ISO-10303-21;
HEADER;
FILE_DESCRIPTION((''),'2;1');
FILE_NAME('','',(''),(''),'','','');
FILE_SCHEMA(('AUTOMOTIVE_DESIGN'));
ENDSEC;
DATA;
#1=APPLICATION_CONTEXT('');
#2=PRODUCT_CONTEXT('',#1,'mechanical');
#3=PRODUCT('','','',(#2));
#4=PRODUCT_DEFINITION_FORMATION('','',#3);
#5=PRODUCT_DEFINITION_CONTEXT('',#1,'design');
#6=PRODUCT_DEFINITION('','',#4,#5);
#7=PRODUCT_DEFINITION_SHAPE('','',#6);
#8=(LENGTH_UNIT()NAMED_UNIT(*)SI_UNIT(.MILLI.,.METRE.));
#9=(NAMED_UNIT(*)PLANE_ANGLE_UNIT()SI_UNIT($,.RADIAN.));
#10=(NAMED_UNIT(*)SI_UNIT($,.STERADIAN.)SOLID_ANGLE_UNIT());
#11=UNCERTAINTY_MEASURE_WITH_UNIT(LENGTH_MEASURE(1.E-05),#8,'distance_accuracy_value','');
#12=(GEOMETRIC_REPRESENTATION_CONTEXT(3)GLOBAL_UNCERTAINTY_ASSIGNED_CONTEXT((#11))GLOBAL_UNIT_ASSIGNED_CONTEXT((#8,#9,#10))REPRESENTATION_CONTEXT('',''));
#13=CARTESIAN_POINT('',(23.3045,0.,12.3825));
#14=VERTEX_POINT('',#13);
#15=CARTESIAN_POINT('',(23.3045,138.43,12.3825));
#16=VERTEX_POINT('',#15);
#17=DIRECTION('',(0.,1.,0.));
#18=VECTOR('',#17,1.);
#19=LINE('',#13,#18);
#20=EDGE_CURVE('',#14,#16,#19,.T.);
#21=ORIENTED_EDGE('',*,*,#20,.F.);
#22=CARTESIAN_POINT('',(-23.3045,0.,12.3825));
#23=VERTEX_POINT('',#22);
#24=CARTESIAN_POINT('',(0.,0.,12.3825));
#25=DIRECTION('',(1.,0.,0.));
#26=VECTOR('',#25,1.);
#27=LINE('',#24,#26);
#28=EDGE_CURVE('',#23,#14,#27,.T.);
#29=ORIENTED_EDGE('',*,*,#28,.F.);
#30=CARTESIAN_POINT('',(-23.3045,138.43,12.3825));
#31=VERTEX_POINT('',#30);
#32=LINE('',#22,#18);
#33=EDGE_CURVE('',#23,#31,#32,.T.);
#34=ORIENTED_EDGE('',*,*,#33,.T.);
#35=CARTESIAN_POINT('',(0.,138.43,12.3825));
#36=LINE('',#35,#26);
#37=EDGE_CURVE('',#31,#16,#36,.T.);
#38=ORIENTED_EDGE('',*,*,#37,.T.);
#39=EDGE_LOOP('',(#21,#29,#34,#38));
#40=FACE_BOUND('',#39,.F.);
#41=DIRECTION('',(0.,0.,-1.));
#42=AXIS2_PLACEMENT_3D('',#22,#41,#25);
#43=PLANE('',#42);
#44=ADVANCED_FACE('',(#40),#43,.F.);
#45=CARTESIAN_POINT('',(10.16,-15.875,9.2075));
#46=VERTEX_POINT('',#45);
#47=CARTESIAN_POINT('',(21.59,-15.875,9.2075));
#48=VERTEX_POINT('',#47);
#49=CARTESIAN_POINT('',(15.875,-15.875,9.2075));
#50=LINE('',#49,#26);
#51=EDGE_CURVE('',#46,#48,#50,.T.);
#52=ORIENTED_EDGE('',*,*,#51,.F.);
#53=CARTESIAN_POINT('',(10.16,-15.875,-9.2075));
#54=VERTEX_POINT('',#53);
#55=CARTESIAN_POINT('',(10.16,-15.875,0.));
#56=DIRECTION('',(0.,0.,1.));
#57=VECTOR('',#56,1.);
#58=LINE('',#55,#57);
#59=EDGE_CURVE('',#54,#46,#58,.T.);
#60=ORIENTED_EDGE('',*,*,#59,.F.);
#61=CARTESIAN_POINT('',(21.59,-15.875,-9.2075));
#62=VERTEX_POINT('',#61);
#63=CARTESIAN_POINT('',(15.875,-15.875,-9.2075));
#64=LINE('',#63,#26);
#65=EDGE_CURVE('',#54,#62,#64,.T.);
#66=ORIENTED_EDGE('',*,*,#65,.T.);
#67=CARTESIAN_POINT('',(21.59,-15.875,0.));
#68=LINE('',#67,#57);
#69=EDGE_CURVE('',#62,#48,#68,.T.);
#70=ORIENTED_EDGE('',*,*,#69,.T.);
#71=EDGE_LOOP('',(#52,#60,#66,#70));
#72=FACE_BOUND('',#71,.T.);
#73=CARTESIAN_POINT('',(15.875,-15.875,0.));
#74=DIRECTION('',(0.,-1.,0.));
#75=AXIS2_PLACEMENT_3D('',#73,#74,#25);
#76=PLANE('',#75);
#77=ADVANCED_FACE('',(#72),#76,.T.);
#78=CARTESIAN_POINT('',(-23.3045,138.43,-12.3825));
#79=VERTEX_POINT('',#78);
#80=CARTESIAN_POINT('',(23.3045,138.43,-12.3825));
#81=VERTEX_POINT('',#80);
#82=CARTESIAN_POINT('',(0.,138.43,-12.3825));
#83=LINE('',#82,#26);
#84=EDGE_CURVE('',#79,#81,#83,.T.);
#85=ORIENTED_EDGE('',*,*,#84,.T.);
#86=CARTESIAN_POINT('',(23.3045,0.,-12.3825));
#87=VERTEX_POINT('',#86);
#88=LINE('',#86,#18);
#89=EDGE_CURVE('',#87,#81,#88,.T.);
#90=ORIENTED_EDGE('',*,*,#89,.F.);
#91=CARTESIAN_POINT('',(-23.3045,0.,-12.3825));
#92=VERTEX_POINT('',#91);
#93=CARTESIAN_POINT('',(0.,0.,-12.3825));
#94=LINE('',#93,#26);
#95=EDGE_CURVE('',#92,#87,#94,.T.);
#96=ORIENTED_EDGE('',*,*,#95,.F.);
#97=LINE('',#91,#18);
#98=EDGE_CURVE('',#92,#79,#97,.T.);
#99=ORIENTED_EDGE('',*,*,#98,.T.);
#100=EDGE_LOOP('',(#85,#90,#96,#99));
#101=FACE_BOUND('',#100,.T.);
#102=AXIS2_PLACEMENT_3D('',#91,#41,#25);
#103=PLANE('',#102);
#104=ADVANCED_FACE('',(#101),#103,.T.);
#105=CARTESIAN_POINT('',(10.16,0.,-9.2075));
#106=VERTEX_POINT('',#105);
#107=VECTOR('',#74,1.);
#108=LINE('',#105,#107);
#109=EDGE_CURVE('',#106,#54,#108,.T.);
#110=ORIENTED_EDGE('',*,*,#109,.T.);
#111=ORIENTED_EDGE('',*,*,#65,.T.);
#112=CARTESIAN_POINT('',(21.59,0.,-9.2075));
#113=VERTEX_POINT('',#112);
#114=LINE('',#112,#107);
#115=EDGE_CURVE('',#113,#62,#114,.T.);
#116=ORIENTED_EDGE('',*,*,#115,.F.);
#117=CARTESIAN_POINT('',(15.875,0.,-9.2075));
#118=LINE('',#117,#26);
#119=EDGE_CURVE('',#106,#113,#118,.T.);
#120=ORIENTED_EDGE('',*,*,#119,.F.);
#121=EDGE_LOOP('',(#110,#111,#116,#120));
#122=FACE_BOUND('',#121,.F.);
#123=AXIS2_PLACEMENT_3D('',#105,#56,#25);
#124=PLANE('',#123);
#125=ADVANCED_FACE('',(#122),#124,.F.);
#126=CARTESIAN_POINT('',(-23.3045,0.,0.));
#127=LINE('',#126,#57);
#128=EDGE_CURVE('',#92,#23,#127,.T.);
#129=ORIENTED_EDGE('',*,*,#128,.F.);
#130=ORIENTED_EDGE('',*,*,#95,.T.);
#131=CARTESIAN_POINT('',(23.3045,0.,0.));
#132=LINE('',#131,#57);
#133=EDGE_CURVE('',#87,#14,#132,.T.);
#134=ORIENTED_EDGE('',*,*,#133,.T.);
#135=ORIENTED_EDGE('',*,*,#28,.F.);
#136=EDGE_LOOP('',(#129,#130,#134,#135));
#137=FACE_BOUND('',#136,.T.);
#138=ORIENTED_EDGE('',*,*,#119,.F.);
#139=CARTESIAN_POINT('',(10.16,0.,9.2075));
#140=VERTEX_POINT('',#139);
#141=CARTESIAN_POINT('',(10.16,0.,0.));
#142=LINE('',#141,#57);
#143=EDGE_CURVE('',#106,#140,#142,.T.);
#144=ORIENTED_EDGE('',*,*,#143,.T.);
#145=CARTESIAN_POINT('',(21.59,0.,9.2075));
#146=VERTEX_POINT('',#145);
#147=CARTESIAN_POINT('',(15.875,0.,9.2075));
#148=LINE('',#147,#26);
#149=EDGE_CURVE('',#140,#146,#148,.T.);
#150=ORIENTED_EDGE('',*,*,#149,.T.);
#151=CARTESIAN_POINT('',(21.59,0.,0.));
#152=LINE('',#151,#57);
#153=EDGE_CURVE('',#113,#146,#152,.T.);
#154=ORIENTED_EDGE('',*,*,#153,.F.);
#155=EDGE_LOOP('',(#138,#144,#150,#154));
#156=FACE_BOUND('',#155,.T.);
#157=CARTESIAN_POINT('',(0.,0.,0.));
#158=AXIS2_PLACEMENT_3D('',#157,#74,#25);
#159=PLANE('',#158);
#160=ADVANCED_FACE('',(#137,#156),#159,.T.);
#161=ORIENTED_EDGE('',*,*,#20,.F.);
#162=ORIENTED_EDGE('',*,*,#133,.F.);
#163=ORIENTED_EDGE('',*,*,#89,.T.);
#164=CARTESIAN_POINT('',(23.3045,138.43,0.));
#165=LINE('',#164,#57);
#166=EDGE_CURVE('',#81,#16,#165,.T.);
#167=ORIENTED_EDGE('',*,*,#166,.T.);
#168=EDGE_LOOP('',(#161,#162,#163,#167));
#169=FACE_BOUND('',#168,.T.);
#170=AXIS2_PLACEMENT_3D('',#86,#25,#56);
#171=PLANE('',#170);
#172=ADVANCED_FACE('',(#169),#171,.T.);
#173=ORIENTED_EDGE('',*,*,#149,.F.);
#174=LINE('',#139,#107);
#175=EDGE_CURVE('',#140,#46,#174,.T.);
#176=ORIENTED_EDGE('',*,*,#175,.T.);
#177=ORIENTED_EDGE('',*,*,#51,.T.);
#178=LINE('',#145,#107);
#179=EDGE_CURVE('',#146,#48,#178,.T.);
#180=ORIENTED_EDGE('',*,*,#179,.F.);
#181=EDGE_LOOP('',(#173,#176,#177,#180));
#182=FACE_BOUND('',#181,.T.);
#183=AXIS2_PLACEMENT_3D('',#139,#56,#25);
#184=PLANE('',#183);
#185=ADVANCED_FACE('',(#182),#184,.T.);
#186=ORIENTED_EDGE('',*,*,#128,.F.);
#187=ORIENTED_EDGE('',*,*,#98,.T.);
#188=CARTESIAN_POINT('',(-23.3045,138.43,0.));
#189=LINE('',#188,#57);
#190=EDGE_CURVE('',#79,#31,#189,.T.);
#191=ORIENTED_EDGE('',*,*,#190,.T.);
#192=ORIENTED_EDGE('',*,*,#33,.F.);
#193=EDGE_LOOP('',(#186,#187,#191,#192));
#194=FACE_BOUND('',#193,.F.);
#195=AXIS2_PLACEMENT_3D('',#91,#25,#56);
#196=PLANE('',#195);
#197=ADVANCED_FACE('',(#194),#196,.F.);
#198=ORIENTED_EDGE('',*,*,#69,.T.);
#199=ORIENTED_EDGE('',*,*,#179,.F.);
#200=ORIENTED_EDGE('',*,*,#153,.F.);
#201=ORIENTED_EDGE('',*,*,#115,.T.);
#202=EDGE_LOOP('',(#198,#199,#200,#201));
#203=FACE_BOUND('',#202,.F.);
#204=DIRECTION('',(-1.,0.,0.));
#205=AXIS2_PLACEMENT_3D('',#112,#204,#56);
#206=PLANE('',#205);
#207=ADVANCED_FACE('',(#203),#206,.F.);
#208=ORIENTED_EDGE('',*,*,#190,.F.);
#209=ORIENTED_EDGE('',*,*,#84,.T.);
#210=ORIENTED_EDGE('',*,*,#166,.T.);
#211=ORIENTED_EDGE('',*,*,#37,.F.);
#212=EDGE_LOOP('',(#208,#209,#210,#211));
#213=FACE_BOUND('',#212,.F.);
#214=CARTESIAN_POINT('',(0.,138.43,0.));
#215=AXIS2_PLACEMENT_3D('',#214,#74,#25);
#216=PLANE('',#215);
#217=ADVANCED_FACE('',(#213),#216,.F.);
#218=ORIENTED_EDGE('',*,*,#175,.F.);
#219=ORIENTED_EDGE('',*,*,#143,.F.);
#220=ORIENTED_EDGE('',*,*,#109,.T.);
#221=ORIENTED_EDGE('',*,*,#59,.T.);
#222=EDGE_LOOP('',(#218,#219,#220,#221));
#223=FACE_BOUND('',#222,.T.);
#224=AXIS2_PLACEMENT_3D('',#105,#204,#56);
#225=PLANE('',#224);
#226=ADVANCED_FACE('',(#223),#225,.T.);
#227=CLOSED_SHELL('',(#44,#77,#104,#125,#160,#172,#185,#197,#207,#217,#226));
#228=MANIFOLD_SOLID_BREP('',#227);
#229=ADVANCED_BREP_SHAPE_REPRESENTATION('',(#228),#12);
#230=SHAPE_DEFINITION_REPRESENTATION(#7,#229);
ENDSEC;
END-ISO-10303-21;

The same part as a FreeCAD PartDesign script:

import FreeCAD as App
import Part
import Sketcher
Q = App.Units.Quantity

doc = App.newDocument("Part")
body = doc.addObject("PartDesign::Body", "Body")

sketch1 = doc.addObject("Sketcher::SketchObject", "Sketch")
body.addObject(sketch1)
sketch1.AttachmentSupport = (doc.XZ_Plane, [""])
sketch1.MapMode = "FlatFace"
sketch1.addGeometry(Part.LineSegment(App.Vector(-23, 12, 0), App.Vector(-23, -12, 0)), False)
sketch1.addGeometry(Part.LineSegment(App.Vector(-23, -12, 0), App.Vector(23, -12, 0)), False)
sketch1.addGeometry(Part.LineSegment(App.Vector(23, -12, 0), App.Vector(23, 12, 0)), False)
sketch1.addGeometry(Part.LineSegment(App.Vector(23, 12, 0), App.Vector(-23, 12, 0)), False)
sketch1.addConstraint(Sketcher.Constraint("Coincident", 0, 2, 1, 1))
sketch1.addConstraint(Sketcher.Constraint("Coincident", 1, 2, 2, 1))
sketch1.addConstraint(Sketcher.Constraint("Coincident", 2, 2, 3, 1))
sketch1.addConstraint(Sketcher.Constraint("Coincident", 3, 2, 0, 1))
sketch1.addConstraint(Sketcher.Constraint("Vertical", 0))
sketch1.addConstraint(Sketcher.Constraint("Horizontal", 1))
sketch1.addConstraint(Sketcher.Constraint("Vertical", 2))
sketch1.addConstraint(Sketcher.Constraint("Horizontal", 3))
sketch1.addConstraint(Sketcher.Constraint("Symmetric", 0, 2, 2, 2, -1, 1))
sketch1.addConstraint(Sketcher.Constraint("DistanceX", 1, 1, 1, 2, Q("1.835 in")))
sketch1.addConstraint(Sketcher.Constraint("DistanceY", 0, 2, 0, 1, Q("0.975 in")))
pad1 = doc.addObject("PartDesign::Pad", "Pad")
body.addObject(pad1)
pad1.Profile = sketch1
pad1.Length = Q("5.45 in")
pad1.Reversed = True

sketch2 = doc.addObject("Sketcher::SketchObject", "Sketch001")
body.addObject(sketch2)
sketch2.AttachmentSupport = (doc.XZ_Plane, [""])
sketch2.MapMode = "FlatFace"
sketch2.addGeometry(Part.LineSegment(App.Vector(10, 9, 0), App.Vector(10, -9, 0)), False)
sketch2.addGeometry(Part.LineSegment(App.Vector(10, -9, 0), App.Vector(22, -9, 0)), False)
sketch2.addGeometry(Part.LineSegment(App.Vector(22, -9, 0), App.Vector(22, 9, 0)), False)
sketch2.addGeometry(Part.LineSegment(App.Vector(22, 9, 0), App.Vector(10, 9, 0)), False)
sketch2.addConstraint(Sketcher.Constraint("Coincident", 0, 2, 1, 1))
sketch2.addConstraint(Sketcher.Constraint("Coincident", 1, 2, 2, 1))
sketch2.addConstraint(Sketcher.Constraint("Coincident", 2, 2, 3, 1))
sketch2.addConstraint(Sketcher.Constraint("Coincident", 3, 2, 0, 1))
sketch2.addConstraint(Sketcher.Constraint("Vertical", 0))
sketch2.addConstraint(Sketcher.Constraint("Horizontal", 1))
sketch2.addConstraint(Sketcher.Constraint("Vertical", 2))
sketch2.addConstraint(Sketcher.Constraint("Horizontal", 3))
sketch2.addConstraint(Sketcher.Constraint("DistanceX", 1, 1, 1, 2, Q("0.45 in")))
sketch2.addConstraint(Sketcher.Constraint("DistanceX", -1, 1, 0, 2, Q("0.4 in")))
sketch2.addConstraint(Sketcher.Constraint("DistanceY", 0, 2, 0, 1, Q("0.725 in")))
sketch2.addConstraint(Sketcher.Constraint("DistanceY", 0, 2, -1, 1, Q("0.3625 in")))
pad2 = doc.addObject("PartDesign::Pad", "Pad001")
body.addObject(pad2)
pad2.Profile = sketch2
pad2.Length = Q("0.625 in")

doc.recompute()
